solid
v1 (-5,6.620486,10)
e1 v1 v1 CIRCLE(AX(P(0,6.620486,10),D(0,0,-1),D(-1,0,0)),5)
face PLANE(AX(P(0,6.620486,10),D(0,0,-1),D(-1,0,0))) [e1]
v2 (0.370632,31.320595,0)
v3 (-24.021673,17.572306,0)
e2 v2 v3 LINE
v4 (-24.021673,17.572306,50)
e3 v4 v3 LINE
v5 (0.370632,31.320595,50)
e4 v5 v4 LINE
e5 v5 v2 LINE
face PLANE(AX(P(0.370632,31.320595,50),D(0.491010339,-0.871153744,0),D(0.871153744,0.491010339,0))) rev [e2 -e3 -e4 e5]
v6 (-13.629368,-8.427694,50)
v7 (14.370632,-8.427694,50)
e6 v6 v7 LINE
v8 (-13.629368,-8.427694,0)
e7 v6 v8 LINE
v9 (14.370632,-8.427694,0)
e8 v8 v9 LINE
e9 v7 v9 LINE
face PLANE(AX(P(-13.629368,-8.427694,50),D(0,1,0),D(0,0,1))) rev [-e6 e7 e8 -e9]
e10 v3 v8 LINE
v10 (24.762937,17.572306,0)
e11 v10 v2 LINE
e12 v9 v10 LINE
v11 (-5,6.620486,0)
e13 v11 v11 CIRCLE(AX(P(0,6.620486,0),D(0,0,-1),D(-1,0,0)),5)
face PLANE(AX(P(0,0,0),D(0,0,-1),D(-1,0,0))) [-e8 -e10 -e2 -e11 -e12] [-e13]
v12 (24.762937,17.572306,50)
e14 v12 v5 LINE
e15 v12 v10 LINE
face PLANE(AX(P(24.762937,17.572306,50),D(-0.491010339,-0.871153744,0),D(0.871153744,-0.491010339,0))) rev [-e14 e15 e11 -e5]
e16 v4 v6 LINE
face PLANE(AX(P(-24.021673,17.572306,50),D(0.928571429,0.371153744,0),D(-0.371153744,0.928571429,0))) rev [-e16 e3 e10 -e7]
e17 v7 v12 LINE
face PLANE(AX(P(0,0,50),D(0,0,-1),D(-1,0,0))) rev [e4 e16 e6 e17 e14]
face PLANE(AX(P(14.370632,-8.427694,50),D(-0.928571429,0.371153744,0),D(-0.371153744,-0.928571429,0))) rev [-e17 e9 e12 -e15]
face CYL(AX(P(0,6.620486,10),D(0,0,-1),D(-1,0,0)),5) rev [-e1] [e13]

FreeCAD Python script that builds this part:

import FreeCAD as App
import Part
import Sketcher

V = App.Vector


def add_polygon(sketch, points):
    """Adds a closed chain of lines whose ends are joined by coincident constraints."""
    first, n = sketch.GeometryCount, len(points)
    for a, b in zip(points, points[1:] + points[:1]):
        sketch.addGeometry(Part.LineSegment(App.Vector(*a, 0), App.Vector(*b, 0)), False)
    for i in range(n):
        sketch.addConstraint(Sketcher.Constraint("Coincident", first + i, 2, first + (i + 1) % n, 1))

doc = App.newDocument("Part")
body = doc.addObject("PartDesign::Body", "Body")

sketch1 = body.newObject("Sketcher::SketchObject", "Sketch")
sketch1.AttachmentSupport = (doc.getObject("XY_Plane"), [""])
sketch1.MapMode = "FlatFace"
add_polygon(sketch1, [(0, 31), (-24, 18), (-14, -8), (14, -8), (25, 18)])
sketch1.addConstraint([
    Sketcher.Constraint("Horizontal", 2),
    Sketcher.Constraint("Horizontal", 0, 2, 3, 2),
    Sketcher.Constraint("Equal", 0, 1),
    Sketcher.Constraint("Equal", 1, 3),
    Sketcher.Constraint("Equal", 3, 4),
    Sketcher.Constraint("DistanceX", 2, 1, 2, 2, 28.0),
    Sketcher.Constraint("Distance", 0, 28.0),
    Sketcher.Constraint("DistanceY", 1, 2, 0, 2, 26.0),
    Sketcher.Constraint("DistanceX", 0, 2, -1, 1, 24.021673),
    Sketcher.Constraint("DistanceY", -1, 1, 0, 2, 17.572306),
])
pad1 = body.newObject("PartDesign::Pad", "Pad")
pad1.Profile = sketch1
pad1.Length = 50

sketch2 = body.newObject("Sketcher::SketchObject", "Sketch001")
sketch2.AttachmentSupport = (doc.getObject("XY_Plane"), [""])
sketch2.MapMode = "FlatFace"
sketch2.addGeometry(Part.Circle(V(0, 7, 0), V(0, 0, 1), 5), False)
sketch2.addConstraint([
    Sketcher.Constraint("PointOnObject", 0, 3, -2),
    Sketcher.Constraint("Diameter", 0, 10.0),
    Sketcher.Constraint("DistanceY", -1, 1, 0, 3, 6.620486),
])
pocket1 = body.newObject("PartDesign::Pocket", "Pocket")
pocket1.Profile = sketch2
pocket1.Length = 10
pocket1.Reversed = True

doc.recompute()
